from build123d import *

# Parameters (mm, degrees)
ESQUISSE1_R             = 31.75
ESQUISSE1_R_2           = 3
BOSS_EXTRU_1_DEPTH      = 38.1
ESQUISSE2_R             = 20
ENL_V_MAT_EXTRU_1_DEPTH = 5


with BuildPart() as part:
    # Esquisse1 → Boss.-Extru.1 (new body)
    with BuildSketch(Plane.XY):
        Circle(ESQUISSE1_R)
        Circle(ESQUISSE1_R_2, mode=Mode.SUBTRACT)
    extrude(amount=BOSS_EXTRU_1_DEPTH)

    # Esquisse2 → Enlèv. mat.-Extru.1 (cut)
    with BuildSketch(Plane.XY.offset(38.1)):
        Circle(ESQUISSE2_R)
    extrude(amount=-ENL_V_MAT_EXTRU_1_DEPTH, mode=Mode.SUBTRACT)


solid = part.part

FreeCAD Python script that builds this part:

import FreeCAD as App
import Part
import Sketcher
from FreeCAD import Vector
Q = App.Units.Quantity

doc = App.newDocument("Part")
body = doc.addObject("PartDesign::Body", "Body")

# Sketch on XY plane
sketch1 = body.newObject("Sketcher::SketchObject", "Sketch")
sketch1.AttachmentSupport = (doc.getObject("XY_Plane"), [""])
sketch1.MapMode = "FlatFace"
sketch1.addGeometry([
    Part.Circle(Vector(0, 0, 0), Vector(0, 0, 1), 31.8),
    Part.Circle(Vector(0, 0, 0), Vector(0, 0, 1), 3),
], False)
sketch1.addConstraint([
    Sketcher.Constraint("Coincident", 0, 3, -1, 1),
    Sketcher.Constraint("Coincident", 1, 3, -1, 1),
    Sketcher.Constraint("Diameter", 1, Q("6 mm")),
    Sketcher.Constraint("Diameter", 0, Q("63.5 mm")),
])
pad1 = body.newObject("PartDesign::Pad", "Pad")
pad1.Profile = sketch1
pad1.Length = 38.1

# Sketch on XY plane
sketch2 = body.newObject("Sketcher::SketchObject", "Sketch001")
sketch2.AttachmentSupport = (doc.getObject("XY_Plane"), [""])
sketch2.MapMode = "FlatFace"
sketch2.AttachmentOffset = App.Placement(Vector(0, 0, 38.1), App.Rotation())
sketch2.addGeometry(Part.Circle(Vector(0, 0, 0), Vector(0, 0, 1), 20), False)
sketch2.addConstraint([
    Sketcher.Constraint("Coincident", 0, 3, -1, 1),
    Sketcher.Constraint("Diameter", 0, Q("40 mm")),
])
pocket1 = body.newObject("PartDesign::Pocket", "Pocket")
pocket1.Profile = sketch2
pocket1.Length = 5

doc.recompute()
